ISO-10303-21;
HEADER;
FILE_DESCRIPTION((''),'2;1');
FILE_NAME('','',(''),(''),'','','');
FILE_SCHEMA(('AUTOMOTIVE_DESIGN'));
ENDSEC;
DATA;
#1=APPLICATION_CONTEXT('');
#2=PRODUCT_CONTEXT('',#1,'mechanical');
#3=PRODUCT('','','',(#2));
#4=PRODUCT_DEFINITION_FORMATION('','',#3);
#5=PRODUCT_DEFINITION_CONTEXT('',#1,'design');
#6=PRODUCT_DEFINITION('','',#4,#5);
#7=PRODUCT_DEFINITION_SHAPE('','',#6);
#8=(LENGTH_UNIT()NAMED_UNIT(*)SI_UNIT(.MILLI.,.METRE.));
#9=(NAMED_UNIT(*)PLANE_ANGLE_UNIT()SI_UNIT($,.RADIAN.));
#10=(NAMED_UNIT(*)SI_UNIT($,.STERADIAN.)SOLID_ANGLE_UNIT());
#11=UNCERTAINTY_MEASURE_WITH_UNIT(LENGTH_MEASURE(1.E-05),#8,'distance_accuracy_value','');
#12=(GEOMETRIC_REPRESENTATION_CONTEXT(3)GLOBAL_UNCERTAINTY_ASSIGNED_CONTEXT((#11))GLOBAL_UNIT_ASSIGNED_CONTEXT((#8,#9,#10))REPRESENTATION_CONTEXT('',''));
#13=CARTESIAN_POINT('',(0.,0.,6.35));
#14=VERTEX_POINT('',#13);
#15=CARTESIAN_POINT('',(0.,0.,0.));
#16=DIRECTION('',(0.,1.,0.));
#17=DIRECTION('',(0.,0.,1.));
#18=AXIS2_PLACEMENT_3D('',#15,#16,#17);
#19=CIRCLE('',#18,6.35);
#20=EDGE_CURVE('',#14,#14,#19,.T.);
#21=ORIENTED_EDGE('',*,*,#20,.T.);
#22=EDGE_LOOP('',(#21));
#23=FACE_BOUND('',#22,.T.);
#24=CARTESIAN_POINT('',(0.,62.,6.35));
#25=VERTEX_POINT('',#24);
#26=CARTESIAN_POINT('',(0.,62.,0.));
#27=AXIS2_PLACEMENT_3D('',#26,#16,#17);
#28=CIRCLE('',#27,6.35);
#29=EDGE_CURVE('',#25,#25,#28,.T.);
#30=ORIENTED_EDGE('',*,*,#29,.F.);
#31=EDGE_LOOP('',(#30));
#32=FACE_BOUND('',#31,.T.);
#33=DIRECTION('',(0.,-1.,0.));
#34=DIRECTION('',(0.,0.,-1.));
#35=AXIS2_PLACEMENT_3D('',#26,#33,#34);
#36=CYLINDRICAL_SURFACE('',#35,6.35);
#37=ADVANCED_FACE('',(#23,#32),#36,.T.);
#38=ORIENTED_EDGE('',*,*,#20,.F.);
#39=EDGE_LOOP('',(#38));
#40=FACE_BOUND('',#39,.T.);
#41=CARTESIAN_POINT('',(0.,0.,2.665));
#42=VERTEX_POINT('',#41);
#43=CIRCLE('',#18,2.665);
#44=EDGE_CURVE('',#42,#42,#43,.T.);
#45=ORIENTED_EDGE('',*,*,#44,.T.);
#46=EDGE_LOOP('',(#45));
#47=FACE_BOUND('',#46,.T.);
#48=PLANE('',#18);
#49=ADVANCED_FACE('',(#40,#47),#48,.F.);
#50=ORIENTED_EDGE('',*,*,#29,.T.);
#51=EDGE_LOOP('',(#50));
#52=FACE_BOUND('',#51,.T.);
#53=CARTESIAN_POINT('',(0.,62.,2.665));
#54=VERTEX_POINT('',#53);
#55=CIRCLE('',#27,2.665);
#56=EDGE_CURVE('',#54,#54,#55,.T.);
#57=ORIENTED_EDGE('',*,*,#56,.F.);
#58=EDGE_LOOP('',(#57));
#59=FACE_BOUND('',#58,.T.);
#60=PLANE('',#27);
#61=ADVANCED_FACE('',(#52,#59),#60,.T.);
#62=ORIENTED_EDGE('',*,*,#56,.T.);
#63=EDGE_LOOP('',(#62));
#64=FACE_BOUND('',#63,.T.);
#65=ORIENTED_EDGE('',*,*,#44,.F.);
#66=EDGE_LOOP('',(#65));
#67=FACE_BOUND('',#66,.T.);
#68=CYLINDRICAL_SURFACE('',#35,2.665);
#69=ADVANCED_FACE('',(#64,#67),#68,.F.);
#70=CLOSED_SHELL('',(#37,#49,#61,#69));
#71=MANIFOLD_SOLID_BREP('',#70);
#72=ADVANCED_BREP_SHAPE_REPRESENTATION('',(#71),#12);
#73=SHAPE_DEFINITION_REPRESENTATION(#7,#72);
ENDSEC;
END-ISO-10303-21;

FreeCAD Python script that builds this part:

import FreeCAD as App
import Part
import Sketcher

V = App.Vector
Q = App.Units.Quantity

doc = App.newDocument("Part")
body = doc.addObject("PartDesign::Body", "Body")

# Sketch on XZ plane
sketch1 = doc.addObject("Sketcher::SketchObject", "Sketch")
body.addObject(sketch1)
sketch1.AttachmentSupport = (doc.XZ_Plane, [""])
sketch1.MapMode = "FlatFace"
sketch1.addGeometry([
    Part.Circle(V(0, 0, 0), V(0, 0, 1), 6.3),
    Part.Circle(V(0, 0, 0), V(0, 0, 1), 2.7),
], False)
sketch1.addConstraint([
    Sketcher.Constraint("Coincident", 0, 3, -1, 1),
    Sketcher.Constraint("Coincident", 1, 3, -1, 1),
    Sketcher.Constraint("Diameter", 0, Q("12.7 mm")),
    Sketcher.Constraint("Diameter", 1, Q("5.33 mm")),
])
pad1 = doc.addObject("PartDesign::Pad", "Pad")
body.addObject(pad1)
pad1.Profile = sketch1
pad1.Length = 62
pad1.Reversed = True

doc.recompute()
